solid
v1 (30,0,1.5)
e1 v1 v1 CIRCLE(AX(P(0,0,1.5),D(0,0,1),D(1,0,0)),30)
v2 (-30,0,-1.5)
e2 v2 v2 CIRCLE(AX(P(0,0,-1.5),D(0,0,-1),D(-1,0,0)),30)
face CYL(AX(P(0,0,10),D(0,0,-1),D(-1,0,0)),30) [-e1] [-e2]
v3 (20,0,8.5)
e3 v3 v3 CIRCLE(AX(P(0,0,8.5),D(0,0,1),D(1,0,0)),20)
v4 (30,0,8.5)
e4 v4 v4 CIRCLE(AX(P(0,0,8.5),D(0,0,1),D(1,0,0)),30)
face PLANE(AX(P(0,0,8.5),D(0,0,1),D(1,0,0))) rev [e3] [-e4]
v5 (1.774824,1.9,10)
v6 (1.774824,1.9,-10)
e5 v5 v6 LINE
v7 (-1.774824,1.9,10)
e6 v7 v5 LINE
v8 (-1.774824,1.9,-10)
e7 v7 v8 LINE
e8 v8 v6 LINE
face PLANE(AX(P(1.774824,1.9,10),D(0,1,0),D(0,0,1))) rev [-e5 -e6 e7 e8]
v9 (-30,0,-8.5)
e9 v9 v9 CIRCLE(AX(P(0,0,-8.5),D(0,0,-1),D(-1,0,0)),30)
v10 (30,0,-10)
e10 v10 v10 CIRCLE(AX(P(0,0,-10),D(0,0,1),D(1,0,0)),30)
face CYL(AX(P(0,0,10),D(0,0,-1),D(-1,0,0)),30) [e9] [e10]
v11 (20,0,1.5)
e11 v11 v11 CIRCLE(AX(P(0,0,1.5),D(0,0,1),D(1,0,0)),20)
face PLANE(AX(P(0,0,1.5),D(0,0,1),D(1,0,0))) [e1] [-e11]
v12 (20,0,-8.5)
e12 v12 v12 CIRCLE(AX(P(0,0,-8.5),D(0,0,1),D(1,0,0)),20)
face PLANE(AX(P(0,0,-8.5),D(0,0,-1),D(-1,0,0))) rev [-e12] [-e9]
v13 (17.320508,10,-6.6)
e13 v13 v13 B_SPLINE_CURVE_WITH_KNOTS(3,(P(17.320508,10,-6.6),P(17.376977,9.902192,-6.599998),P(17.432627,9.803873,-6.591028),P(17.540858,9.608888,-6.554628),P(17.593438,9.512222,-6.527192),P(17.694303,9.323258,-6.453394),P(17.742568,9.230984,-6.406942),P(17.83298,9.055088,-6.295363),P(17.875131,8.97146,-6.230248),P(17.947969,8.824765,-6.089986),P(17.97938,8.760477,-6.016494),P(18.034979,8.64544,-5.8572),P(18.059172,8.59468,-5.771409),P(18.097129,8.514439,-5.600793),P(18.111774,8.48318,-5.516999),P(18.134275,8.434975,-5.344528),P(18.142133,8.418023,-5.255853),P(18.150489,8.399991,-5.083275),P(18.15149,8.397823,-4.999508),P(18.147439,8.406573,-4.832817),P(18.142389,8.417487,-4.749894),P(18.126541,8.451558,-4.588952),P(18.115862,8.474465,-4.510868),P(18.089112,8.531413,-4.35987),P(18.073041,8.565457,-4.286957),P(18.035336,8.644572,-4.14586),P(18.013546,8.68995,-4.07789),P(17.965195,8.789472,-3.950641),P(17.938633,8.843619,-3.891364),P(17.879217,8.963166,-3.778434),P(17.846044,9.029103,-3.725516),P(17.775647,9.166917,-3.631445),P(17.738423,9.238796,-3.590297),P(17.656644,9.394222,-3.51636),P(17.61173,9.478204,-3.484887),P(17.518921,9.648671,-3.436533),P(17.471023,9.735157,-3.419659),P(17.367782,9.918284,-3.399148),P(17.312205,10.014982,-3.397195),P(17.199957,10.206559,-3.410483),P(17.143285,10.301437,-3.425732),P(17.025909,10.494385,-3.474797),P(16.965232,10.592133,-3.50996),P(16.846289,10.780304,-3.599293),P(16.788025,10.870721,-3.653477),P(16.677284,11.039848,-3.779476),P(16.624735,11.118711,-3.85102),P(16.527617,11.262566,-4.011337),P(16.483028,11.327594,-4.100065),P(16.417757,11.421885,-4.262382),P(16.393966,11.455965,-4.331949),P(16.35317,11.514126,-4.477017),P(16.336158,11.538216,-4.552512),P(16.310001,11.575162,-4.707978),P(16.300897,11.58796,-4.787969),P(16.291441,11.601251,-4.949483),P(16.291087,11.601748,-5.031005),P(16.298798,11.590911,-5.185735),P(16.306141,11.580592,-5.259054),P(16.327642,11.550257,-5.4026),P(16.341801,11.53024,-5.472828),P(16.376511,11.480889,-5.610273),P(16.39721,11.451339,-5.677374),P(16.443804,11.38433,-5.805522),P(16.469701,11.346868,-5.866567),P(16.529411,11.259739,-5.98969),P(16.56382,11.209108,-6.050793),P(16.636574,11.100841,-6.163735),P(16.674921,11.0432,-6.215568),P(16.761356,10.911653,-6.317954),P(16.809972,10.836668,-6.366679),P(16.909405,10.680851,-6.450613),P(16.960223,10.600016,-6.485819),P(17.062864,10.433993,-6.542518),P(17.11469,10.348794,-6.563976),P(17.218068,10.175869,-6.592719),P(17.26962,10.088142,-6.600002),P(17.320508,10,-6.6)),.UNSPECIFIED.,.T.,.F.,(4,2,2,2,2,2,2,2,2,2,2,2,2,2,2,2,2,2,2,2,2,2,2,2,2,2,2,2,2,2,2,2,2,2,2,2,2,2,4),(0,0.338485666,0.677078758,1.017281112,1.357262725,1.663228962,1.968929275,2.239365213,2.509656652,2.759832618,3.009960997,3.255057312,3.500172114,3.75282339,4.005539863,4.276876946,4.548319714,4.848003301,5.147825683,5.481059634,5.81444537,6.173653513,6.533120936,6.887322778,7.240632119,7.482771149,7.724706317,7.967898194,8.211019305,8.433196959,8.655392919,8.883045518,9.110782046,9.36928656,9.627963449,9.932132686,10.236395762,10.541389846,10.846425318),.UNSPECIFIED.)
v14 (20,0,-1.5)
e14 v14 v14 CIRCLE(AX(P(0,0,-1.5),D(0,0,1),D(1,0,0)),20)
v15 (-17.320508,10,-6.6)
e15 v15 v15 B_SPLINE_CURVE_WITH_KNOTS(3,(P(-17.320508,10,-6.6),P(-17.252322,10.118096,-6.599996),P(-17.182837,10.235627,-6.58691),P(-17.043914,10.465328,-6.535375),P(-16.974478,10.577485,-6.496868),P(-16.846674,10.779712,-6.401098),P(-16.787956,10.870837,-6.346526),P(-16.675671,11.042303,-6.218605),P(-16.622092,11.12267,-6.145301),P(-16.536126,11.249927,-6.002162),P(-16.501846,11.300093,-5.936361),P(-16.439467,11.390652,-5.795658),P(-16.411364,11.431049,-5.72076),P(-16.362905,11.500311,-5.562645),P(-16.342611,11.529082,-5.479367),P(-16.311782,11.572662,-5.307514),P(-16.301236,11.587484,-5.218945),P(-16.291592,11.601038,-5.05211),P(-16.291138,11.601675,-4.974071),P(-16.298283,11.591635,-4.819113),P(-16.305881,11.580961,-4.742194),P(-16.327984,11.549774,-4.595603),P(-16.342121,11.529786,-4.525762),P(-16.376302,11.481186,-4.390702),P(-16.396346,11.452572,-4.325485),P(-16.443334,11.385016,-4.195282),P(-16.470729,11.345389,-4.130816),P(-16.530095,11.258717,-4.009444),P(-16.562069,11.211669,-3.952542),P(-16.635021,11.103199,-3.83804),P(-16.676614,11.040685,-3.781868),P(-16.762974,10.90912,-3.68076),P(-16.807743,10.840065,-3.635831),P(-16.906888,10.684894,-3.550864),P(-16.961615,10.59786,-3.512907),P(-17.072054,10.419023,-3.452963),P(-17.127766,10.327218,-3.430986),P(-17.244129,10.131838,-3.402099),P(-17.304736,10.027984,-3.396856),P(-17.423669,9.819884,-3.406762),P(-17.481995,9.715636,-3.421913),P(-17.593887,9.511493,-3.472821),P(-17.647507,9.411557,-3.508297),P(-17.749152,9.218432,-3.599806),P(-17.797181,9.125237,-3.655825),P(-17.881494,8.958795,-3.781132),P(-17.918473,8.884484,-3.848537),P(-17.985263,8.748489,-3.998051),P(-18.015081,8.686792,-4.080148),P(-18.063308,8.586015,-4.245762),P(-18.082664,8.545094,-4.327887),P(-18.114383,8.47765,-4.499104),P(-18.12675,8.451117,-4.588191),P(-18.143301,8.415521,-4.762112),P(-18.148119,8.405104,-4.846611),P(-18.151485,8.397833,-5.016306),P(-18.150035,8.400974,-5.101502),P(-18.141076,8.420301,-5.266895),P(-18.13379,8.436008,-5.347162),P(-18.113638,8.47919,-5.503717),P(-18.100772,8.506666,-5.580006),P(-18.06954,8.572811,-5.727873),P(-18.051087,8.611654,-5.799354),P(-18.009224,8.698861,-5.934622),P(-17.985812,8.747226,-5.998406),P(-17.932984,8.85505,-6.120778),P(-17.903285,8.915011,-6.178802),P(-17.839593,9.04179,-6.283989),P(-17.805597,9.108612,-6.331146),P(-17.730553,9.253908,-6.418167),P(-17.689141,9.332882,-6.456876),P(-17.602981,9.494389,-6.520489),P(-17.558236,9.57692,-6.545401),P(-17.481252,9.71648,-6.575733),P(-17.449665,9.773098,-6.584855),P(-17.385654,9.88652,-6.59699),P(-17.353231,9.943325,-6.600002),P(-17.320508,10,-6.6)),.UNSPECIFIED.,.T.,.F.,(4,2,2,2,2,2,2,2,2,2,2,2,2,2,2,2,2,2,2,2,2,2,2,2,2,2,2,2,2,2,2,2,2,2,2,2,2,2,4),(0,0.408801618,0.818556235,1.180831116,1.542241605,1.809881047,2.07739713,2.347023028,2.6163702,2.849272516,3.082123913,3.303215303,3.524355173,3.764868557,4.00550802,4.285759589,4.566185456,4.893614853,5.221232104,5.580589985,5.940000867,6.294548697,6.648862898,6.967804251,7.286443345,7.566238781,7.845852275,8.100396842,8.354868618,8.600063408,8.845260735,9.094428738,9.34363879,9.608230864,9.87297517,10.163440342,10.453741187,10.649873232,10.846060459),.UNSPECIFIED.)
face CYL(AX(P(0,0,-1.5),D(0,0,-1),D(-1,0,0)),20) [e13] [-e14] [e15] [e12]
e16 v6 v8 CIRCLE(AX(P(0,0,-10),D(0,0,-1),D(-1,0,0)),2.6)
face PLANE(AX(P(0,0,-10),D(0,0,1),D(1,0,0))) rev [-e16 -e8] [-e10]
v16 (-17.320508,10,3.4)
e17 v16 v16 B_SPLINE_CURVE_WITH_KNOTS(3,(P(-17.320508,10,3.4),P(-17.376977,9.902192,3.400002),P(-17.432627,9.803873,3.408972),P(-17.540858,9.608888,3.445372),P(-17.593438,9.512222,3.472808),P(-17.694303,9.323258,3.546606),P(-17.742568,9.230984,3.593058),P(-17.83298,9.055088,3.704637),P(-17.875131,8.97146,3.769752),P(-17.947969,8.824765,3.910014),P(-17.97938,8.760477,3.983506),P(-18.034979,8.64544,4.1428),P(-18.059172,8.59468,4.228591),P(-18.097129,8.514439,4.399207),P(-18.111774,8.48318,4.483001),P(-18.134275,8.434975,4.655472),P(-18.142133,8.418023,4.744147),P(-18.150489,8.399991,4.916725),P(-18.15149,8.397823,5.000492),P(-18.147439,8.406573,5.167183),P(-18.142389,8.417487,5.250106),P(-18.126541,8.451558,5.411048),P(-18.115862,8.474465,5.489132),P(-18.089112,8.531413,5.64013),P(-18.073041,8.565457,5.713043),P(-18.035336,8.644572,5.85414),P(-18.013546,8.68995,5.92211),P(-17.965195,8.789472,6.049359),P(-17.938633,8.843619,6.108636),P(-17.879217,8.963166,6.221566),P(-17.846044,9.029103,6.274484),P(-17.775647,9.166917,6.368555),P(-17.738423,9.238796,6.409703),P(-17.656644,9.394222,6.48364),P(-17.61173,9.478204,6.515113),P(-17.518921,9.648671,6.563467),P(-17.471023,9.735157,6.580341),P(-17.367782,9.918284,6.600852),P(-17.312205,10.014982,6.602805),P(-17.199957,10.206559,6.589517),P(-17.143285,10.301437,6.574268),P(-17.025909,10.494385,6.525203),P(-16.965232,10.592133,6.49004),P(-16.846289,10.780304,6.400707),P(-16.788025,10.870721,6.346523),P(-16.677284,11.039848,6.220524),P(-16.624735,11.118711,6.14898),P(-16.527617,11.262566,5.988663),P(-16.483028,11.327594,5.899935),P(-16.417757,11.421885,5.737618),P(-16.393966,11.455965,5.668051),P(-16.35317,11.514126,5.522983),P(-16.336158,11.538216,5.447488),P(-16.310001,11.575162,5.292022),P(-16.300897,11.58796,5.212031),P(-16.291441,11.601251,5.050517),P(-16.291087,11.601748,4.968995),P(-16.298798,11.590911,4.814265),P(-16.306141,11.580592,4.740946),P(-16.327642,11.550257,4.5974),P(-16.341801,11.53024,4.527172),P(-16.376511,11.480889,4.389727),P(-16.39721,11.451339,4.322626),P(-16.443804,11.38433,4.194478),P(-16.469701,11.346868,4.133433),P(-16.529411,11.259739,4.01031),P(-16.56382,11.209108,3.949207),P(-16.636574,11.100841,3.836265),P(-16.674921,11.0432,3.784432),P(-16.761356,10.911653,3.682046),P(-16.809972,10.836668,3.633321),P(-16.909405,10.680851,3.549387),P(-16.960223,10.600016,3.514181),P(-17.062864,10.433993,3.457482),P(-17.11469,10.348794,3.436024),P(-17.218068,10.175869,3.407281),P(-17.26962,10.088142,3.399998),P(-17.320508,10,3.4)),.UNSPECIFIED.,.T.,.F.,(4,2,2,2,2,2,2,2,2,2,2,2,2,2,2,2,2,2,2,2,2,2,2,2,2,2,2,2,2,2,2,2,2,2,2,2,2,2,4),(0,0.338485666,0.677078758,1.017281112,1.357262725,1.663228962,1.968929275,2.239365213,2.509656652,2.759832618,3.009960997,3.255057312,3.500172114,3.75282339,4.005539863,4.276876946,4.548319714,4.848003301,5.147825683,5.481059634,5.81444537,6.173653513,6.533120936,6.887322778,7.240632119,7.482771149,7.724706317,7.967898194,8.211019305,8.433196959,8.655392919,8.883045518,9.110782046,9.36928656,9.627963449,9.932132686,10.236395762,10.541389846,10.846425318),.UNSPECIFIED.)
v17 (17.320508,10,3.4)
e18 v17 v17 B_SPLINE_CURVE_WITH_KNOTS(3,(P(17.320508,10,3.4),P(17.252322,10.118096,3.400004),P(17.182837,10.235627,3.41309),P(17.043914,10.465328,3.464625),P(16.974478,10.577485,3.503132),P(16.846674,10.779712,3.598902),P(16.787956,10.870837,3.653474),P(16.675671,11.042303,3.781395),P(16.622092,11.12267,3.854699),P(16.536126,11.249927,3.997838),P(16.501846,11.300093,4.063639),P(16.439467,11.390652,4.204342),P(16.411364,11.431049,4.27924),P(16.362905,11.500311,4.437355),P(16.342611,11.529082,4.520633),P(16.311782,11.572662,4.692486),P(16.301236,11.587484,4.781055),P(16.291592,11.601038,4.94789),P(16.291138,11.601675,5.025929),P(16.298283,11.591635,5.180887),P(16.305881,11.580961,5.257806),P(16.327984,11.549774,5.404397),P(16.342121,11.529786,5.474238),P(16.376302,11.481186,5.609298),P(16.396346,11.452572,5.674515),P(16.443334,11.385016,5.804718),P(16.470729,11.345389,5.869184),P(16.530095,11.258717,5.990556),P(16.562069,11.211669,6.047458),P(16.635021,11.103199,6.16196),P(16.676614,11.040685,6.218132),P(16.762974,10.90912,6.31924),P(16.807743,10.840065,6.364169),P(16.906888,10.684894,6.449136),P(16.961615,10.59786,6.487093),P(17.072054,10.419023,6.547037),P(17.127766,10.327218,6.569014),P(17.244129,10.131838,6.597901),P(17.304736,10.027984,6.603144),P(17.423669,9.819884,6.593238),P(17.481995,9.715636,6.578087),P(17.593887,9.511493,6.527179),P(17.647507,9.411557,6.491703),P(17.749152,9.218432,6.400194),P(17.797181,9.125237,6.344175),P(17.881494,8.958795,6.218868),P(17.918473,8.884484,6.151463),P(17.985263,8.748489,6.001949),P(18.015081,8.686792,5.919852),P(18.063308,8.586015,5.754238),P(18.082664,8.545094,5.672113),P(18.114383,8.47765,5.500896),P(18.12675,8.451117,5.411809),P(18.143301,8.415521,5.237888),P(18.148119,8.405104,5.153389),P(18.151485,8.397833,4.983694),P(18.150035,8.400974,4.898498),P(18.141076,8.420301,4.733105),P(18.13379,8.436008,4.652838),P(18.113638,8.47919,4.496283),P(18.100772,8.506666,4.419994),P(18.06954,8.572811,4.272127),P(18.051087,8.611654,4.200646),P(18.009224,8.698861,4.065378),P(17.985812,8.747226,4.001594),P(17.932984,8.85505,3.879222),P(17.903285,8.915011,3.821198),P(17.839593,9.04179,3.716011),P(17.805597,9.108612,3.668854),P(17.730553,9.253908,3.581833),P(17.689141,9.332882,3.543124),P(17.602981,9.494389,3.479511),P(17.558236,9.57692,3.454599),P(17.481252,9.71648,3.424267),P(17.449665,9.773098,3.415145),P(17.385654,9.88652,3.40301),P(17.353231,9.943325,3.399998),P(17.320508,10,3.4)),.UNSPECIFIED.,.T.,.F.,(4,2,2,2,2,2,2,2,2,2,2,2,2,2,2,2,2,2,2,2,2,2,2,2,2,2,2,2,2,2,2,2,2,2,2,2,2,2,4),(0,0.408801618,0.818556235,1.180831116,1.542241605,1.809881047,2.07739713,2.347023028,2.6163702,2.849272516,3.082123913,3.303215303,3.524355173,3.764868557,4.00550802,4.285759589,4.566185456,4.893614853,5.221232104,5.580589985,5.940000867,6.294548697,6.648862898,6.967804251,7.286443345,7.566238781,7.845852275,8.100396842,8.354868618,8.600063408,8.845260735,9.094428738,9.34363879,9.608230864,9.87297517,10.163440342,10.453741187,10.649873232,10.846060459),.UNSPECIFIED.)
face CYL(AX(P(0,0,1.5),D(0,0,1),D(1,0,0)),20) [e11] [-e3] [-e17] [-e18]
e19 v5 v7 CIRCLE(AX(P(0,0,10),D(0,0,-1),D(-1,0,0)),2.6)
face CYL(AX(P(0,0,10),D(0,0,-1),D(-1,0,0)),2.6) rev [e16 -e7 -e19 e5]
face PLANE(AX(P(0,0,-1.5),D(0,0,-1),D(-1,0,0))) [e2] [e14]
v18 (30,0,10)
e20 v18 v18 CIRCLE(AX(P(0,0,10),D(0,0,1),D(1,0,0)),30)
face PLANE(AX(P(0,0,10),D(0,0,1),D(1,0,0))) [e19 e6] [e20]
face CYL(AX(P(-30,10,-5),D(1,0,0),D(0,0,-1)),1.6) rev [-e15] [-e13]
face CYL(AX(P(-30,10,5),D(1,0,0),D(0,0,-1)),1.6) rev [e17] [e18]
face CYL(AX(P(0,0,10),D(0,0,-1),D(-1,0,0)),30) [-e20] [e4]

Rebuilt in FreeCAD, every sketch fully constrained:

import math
import FreeCAD as App
import Part
import Sketcher

V = App.Vector
Q = App.Units.Quantity


def add_polygon(sketch, points):
    """Adds a closed chain of lines whose ends are joined by coincident constraints."""
    first, n = sketch.GeometryCount, len(points)
    for a, b in zip(points, points[1:] + points[:1]):
        sketch.addGeometry(Part.LineSegment(App.Vector(*a, 0), App.Vector(*b, 0)), False)
    for i in range(n):
        sketch.addConstraint(Sketcher.Constraint("Coincident", first + i, 2, first + (i + 1) % n, 1))

doc = App.newDocument("Part")
body = doc.addObject("PartDesign::Body", "Body")

# Sketch on XY plane
sketch1 = body.newObject("Sketcher::SketchObject", "Sketch")
sketch1.AttachmentSupport = (doc.getObject("XY_Plane"), [""])
sketch1.MapMode = "FlatFace"
sketch1.addGeometry(Part.Circle(V(0, 0, 0), V(0, 0, 1), 30), False)
sketch1.addConstraint(Sketcher.Constraint("Coincident", 0, 3, -1, 1))
sketch1.addConstraint(Sketcher.Constraint("Diameter", 0, Q("60 mm")))
pad1 = body.newObject("PartDesign::Pad", "Pad")
pad1.Profile = sketch1
pad1.Length = 20
pad1.Midplane = True

# Sketch on XY plane
sketch2 = body.newObject("Sketcher::SketchObject", "Sketch001")
sketch2.AttachmentSupport = (doc.getObject("XY_Plane"), [""])
sketch2.MapMode = "FlatFace"
sketch2.AttachmentOffset = App.Placement(V(0, 0, 5), App.Rotation())
add_polygon(sketch2, [(-40, 40), (-40, -40), (40, -40), (40, 40)])  # lines 0-3
sketch2.addGeometry(Part.Circle(V(0, 0, 0), V(0, 0, 1), 20), False)  # 4
sketch2.addConstraint(Sketcher.Constraint("Vertical", 0))
sketch2.addConstraint(Sketcher.Constraint("Horizontal", 1))
sketch2.addConstraint(Sketcher.Constraint("Vertical", 2))
sketch2.addConstraint(Sketcher.Constraint("Horizontal", 3))
sketch2.addConstraint(Sketcher.Constraint("Coincident", 4, 3, -1, 1))
sketch2.addConstraint(Sketcher.Constraint("Symmetric", 0, 2, 2, 2, -1, 1))
sketch2.addConstraint(Sketcher.Constraint("Equal", 3, 0))
sketch2.addConstraint(Sketcher.Constraint("Diameter", 4, Q("40 mm")))
sketch2.addConstraint(Sketcher.Constraint("DistanceX", 1, 1, 1, 2, Q("79.436 mm")))
pocket1 = body.newObject("PartDesign::Pocket", "Pocket")
pocket1.Profile = sketch2
pocket1.Length = 7
pocket1.Midplane = True
doc.recompute()

mirrored = body.newObject("PartDesign::Mirrored", "Mirrored")
mirrored.Originals = [pocket1]
mirrored.MirrorPlane = (doc.getObject("XY_Plane"), [""])
body.Tip = mirrored

# Sketch on YZ plane
sketch3 = body.newObject("Sketcher::SketchObject", "Sketch002")
sketch3.AttachmentSupport = (doc.getObject("YZ_Plane"), [""])
sketch3.MapMode = "FlatFace"
sketch3.addGeometry(Part.Circle(V(10, 5, 0), V(0, 0, 1), 1.6), False)
sketch3.addGeometry(Part.Circle(V(10, -5, 0), V(0, 0, 1), 1.6), False)
sketch3.addConstraint(Sketcher.Constraint("Equal", 0, 1))
sketch3.addConstraint(Sketcher.Constraint("Symmetric", 0, 3, 1, 3, -1))
sketch3.addConstraint(Sketcher.Constraint("Diameter", 0, Q("3.2 mm")))
sketch3.addConstraint(Sketcher.Constraint("DistanceX", -1, 1, 0, 3, Q("10 mm")))
sketch3.addConstraint(Sketcher.Constraint("DistanceY", -1, 1, 0, 3, Q("5 mm")))
pocket2 = body.newObject("PartDesign::Pocket", "Pocket001")
pocket2.Profile = sketch3
pocket2.Type = "ThroughAll"
pocket2.Midplane = True

# Sketch on XY plane
sketch4 = body.newObject("Sketcher::SketchObject", "Sketch003")
sketch4.AttachmentSupport = (doc.getObject("XY_Plane"), [""])
sketch4.MapMode = "FlatFace"
sketch4.AttachmentOffset = App.Placement(V(0, 0, -10), App.Rotation())
sketch4.addGeometry(Part.LineSegment(V(-1.8, 1.9, 0), V(1.8, 1.9, 0)), False)
sketch4.addGeometry(Part.ArcOfCircle(Part.Circle(V(0, 0, 0), V(0, 0, 1), 2.6), math.radians(133), math.radians(407)), False)
sketch4.addConstraint(Sketcher.Constraint("Coincident", 0, 1, 1, 1))
sketch4.addConstraint(Sketcher.Constraint("Coincident", 1, 2, 0, 2))
sketch4.addConstraint(Sketcher.Constraint("Horizontal", 0))
sketch4.addConstraint(Sketcher.Constraint("Coincident", 1, 3, -1, 1))
sketch4.addConstraint(Sketcher.Constraint("Radius", 1, Q("2.6 mm")))
sketch4.addConstraint(Sketcher.Constraint("DistanceY", -1, 1, 0, 1, Q("1.9 mm")))
pocket3 = body.newObject("PartDesign::Pocket", "Pocket002")
pocket3.Profile = sketch4
pocket3.Type = "ThroughAll"
pocket3.Midplane = True

doc.recompute()
